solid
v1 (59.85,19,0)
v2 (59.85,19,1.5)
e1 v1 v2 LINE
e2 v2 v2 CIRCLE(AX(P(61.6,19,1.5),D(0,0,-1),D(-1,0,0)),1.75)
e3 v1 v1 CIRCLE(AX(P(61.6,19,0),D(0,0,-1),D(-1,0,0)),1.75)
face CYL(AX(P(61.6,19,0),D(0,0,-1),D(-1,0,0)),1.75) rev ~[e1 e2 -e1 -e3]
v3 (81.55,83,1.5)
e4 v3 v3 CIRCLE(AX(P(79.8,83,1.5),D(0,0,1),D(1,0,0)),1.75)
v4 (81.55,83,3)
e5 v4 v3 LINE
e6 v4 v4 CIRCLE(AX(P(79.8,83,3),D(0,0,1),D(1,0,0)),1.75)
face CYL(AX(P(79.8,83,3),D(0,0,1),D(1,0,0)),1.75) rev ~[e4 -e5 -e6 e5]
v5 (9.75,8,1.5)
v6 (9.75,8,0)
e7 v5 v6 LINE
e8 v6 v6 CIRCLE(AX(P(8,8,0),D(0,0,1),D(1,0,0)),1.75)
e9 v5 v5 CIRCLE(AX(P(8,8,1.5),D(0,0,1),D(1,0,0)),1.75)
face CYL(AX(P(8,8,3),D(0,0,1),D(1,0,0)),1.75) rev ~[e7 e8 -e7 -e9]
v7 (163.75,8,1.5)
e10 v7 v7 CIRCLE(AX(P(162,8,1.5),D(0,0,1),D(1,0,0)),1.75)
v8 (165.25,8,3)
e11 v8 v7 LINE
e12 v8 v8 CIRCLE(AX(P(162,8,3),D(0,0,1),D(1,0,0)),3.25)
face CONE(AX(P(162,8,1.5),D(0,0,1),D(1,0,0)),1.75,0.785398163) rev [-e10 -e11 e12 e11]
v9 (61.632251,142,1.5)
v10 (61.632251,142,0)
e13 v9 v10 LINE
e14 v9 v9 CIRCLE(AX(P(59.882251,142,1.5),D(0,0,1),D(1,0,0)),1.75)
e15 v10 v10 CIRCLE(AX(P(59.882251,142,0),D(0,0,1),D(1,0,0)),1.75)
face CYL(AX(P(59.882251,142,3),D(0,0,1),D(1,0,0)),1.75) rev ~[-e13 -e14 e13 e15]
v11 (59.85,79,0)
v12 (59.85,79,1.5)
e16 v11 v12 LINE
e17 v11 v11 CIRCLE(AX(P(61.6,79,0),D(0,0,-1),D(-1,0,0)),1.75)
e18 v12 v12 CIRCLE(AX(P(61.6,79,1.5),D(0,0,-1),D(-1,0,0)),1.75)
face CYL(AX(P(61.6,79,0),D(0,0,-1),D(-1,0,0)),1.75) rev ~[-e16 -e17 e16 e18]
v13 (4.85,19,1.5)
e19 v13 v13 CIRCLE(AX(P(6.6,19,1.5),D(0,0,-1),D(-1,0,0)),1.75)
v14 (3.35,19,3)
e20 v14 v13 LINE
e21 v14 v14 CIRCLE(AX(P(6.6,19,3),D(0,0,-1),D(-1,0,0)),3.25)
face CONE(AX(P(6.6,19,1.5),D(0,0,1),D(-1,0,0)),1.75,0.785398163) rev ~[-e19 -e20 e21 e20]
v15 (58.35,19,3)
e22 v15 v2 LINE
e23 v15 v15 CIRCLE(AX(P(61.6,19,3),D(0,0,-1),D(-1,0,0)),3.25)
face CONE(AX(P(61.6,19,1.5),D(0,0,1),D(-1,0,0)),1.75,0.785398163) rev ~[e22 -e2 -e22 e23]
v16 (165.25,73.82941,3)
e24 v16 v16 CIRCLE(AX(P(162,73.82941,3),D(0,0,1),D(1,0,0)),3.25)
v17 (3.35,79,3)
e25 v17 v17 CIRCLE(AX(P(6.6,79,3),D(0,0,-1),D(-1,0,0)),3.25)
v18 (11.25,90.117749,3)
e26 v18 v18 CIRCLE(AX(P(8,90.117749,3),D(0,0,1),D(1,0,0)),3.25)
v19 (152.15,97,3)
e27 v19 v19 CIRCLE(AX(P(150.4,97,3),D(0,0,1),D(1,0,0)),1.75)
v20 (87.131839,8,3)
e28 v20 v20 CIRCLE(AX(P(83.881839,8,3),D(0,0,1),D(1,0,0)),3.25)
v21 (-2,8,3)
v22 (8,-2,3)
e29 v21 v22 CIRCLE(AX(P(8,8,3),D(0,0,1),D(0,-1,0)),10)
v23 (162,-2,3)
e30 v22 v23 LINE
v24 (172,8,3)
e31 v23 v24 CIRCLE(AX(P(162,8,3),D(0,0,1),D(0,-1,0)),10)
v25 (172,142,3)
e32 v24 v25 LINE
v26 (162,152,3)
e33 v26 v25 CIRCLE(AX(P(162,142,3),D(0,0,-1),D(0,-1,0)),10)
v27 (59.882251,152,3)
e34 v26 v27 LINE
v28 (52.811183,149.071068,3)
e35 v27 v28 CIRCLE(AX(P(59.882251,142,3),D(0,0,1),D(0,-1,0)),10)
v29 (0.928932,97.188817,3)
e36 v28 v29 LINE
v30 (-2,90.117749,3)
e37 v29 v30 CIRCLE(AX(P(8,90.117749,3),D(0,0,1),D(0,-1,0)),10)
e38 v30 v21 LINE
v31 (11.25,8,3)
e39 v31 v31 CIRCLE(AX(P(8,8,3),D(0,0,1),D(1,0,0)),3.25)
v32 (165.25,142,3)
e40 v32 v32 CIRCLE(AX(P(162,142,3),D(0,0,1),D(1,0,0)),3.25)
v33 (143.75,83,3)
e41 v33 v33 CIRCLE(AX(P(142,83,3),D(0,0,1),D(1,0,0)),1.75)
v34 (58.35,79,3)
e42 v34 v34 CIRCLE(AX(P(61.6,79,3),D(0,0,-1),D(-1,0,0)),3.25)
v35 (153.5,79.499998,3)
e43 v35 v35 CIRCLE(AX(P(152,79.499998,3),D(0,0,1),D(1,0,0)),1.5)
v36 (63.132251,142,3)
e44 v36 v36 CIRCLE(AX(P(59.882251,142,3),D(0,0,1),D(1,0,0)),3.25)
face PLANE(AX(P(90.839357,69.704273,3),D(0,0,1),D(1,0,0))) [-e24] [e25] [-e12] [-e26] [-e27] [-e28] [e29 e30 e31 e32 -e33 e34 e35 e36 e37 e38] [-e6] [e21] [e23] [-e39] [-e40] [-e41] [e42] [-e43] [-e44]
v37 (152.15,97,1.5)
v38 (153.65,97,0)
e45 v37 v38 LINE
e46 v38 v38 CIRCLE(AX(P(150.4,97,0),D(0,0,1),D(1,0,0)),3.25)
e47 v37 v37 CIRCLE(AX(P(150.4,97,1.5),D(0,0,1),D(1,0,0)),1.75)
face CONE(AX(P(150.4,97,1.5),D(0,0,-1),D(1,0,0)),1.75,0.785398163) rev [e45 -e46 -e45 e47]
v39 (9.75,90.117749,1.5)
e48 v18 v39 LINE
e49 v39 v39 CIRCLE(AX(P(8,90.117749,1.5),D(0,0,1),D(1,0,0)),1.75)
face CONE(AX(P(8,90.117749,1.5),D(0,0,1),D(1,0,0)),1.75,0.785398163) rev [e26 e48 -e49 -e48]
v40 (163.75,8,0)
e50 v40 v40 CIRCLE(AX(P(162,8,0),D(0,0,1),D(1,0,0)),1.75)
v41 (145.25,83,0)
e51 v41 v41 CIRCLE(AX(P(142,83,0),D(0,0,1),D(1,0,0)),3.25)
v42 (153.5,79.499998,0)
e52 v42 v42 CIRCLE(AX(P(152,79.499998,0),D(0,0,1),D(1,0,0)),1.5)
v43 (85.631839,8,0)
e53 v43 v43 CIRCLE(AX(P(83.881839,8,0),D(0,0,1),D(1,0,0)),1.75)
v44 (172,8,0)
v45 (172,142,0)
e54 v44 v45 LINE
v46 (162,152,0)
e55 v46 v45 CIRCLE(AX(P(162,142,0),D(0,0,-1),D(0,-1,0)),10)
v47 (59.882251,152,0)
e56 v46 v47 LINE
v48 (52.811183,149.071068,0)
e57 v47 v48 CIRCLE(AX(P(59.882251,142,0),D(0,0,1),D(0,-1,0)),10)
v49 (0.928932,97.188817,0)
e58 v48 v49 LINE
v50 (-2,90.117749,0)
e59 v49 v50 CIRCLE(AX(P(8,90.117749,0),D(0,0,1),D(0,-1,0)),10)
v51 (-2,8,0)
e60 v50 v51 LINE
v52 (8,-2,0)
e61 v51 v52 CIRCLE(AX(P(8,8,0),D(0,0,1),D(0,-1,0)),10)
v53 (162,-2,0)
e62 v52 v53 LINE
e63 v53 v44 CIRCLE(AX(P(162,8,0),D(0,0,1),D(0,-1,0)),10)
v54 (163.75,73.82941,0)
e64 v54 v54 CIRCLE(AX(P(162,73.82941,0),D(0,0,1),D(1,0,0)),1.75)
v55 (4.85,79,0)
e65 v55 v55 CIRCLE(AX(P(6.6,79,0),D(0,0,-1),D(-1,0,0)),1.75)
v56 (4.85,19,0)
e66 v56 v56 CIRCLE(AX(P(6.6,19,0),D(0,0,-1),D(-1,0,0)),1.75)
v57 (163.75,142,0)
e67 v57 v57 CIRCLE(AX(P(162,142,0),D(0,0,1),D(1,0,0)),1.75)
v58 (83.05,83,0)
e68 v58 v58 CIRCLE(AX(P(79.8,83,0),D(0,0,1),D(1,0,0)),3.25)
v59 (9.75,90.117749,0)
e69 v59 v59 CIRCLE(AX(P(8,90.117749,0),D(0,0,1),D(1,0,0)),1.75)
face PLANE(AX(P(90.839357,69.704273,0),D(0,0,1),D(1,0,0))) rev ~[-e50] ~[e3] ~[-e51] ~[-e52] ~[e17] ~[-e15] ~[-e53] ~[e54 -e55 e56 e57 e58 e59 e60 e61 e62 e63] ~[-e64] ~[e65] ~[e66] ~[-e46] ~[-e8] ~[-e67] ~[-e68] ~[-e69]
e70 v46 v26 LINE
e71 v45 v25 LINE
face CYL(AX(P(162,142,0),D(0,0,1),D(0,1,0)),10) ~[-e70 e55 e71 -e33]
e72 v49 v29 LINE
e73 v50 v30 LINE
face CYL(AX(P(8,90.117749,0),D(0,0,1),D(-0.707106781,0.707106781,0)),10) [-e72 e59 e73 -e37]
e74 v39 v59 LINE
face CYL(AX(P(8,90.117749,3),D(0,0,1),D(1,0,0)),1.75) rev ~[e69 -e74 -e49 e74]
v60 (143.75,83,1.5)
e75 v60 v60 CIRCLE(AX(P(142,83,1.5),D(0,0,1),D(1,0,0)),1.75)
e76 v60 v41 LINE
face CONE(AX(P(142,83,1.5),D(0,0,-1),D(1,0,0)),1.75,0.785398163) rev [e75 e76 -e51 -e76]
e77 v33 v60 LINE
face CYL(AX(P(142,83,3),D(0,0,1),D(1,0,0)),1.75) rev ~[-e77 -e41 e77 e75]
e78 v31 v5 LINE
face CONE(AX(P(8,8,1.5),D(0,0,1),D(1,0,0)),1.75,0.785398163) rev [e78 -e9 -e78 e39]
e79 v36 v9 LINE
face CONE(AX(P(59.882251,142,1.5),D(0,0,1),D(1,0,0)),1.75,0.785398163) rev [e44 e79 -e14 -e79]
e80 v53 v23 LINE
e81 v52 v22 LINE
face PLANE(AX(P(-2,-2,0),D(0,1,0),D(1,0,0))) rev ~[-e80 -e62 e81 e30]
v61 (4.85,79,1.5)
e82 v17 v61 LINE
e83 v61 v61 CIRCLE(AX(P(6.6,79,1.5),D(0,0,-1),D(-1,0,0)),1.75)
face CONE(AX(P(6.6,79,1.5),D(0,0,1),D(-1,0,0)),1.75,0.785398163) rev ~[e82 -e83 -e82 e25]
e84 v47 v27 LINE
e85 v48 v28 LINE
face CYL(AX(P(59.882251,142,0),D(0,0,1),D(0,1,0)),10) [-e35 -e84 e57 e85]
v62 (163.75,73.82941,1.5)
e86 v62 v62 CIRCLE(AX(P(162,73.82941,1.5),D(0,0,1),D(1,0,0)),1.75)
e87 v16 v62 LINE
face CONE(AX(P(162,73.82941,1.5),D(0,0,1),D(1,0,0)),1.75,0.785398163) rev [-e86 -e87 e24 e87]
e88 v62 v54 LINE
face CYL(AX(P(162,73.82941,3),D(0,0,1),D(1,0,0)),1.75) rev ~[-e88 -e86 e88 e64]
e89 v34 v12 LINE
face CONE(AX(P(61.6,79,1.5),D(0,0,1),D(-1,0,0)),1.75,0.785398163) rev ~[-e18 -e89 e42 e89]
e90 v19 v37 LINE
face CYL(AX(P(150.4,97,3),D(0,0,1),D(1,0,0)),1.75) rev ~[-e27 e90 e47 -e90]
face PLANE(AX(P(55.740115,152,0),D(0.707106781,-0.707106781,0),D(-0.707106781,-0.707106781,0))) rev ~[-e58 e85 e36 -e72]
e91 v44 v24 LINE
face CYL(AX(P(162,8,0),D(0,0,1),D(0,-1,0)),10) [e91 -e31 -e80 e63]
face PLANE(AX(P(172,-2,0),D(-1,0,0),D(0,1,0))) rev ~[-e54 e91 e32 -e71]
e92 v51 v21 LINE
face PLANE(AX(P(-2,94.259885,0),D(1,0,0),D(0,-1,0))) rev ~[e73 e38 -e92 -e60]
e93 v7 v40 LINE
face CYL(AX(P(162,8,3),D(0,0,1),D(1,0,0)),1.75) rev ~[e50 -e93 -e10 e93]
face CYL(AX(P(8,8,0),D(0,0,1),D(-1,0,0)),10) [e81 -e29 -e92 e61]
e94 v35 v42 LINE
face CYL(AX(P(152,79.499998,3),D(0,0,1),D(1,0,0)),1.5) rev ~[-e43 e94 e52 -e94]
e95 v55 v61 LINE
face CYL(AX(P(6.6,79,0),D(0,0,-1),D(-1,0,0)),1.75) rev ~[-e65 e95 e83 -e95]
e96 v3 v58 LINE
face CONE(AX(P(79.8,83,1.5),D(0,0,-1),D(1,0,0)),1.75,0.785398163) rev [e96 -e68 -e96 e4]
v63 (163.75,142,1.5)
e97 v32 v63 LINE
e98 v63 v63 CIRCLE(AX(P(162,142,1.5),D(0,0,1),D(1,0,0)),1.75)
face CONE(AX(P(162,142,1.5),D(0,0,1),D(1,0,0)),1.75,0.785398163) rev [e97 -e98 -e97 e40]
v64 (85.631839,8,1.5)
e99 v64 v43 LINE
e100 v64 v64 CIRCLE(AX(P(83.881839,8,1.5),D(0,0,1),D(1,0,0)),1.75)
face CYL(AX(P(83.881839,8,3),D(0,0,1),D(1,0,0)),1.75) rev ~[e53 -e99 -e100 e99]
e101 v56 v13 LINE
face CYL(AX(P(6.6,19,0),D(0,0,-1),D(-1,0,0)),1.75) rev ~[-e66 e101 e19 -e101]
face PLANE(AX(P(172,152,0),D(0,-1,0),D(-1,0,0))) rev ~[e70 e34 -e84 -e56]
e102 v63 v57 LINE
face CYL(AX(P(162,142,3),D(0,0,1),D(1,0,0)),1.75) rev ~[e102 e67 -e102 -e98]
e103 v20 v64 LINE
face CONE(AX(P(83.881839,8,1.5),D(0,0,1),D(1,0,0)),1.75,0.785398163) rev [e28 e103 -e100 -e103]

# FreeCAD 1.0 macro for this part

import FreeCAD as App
import Part
import Sketcher
from FreeCAD import Vector
Q = App.Units.Quantity


def edges_at(feature, points):
    """Names of the edges that pass closest to the given points."""
    edges = feature.Shape.Edges
    near = lambda p: min(range(len(edges)), key=lambda i: edges[i].distToShape(Part.Vertex(*p))[0])
    return sorted({f"Edge{near(p) + 1}" for p in points})

doc = App.newDocument("Part")
body = doc.addObject("PartDesign::Body", "Body")

sketch1 = doc.addObject("Sketcher::SketchObject", "Sketch")
body.addObject(sketch1)
sketch1.AttachmentSupport = (doc.XY_Plane, [""])
sketch1.MapMode = "FlatFace"
sketch1.addGeometry([
    Part.LineSegment(Vector(172, 152, 0), Vector(55.740115, 152, 0)),
    Part.LineSegment(Vector(55.740115, 152, 0), Vector(-2, 94.259885, 0)),
    Part.LineSegment(Vector(-2, 94.259885, 0), Vector(-2, -2, 0)),
    Part.LineSegment(Vector(-2, -2, 0), Vector(172, -2, 0)),
    Part.LineSegment(Vector(172, -2, 0), Vector(172, 152, 0)),
], False)
sketch1.addConstraint([
    Sketcher.Constraint("Coincident", 0, 2, 1, 1),
    Sketcher.Constraint("Coincident", 1, 2, 2, 1),
    Sketcher.Constraint("Coincident", 2, 2, 3, 1),
    Sketcher.Constraint("Coincident", 3, 2, 4, 1),
    Sketcher.Constraint("Coincident", 4, 2, 0, 1),
    Sketcher.Constraint("Horizontal", 0),
    Sketcher.Constraint("Vertical", 2),
    Sketcher.Constraint("Horizontal", 3),
    Sketcher.Constraint("Vertical", 4),
    Sketcher.Constraint("DistanceX", 3, 1, 3, 2, Q("174 mm")),
    Sketcher.Constraint("DistanceY", 4, 1, 4, 2, Q("154 mm")),
    Sketcher.Constraint("Angle", 1, Q("-135 deg")),
    Sketcher.Constraint("DistanceY", -1, 1, 0, 2, Q("152 mm")),
    Sketcher.Constraint("DistanceX", 1, 2, -1, 1, Q("2 mm")),
    Sketcher.Constraint("DistanceX", 0, 2, 0, 1, Q("116.259885 mm")),
])
pad1 = doc.addObject("PartDesign::Pad", "Pad")
body.addObject(pad1)
pad1.Profile = sketch1
pad1.Length = 3
doc.recompute()

fillet = doc.addObject("PartDesign::Fillet", "Fillet")
body.addObject(fillet)
fillet.Base = (pad1, edges_at(pad1, [
    (172, -2, 1.5),
    (-2, -2, 1.5),
    (-2, 94.26, 1.5),
    (55.74, 152, 1.5),
    (172, 152, 1.5),
]))
fillet.Radius = 10

sketch2 = doc.addObject("Sketcher::SketchObject", "Sketch001")
body.addObject(sketch2)
sketch2.AttachmentSupport = (doc.XY_Plane, [""])
sketch2.MapMode = "FlatFace"
sketch2.AttachmentOffset = App.Placement(Vector(0, 0, 3), App.Rotation())
sketch2.addGeometry([
    Part.Circle(Vector(162, 142, 0), Vector(0, 0, 1), 1.75),
    Part.Circle(Vector(59.882251, 142, 0), Vector(0, 0, 1), 1.75),
    Part.Circle(Vector(8, 90.117749, 0), Vector(0, 0, 1), 1.75),
    Part.Circle(Vector(8, 8, 0), Vector(0, 0, 1), 1.75),
    Part.Circle(Vector(162, 8, 0), Vector(0, 0, 1), 1.75),
    Part.Circle(Vector(162, 73.82941, 0), Vector(0, 0, 1), 1.75),
    Part.Circle(Vector(83.881839, 8, 0), Vector(0, 0, 1), 1.75),
], False)
sketch2.addConstraint([
    Sketcher.Constraint("Equal", 0, 1),
    Sketcher.Constraint("Equal", 1, 2),
    Sketcher.Constraint("Equal", 2, 3),
    Sketcher.Constraint("Equal", 3, 4),
    Sketcher.Constraint("Equal", 4, 5),
    Sketcher.Constraint("Equal", 5, 6),
    Sketcher.Constraint("Horizontal", 0, 3, 1, 3),
    Sketcher.Constraint("Horizontal", 3, 3, 4, 3),
    Sketcher.Constraint("Horizontal", 4, 3, 6, 3),
    Sketcher.Constraint("Vertical", 2, 3, 3, 3),
    Sketcher.Constraint("Vertical", 0, 3, 4, 3),
    Sketcher.Constraint("Vertical", 4, 3, 5, 3),
    Sketcher.Constraint("Diameter", 0, Q("3.5 mm")),
    Sketcher.Constraint("DistanceX", -1, 1, 0, 3, Q("162 mm")),
    Sketcher.Constraint("DistanceY", -1, 1, 0, 3, Q("142 mm")),
    Sketcher.Constraint("DistanceX", -1, 1, 2, 3, Q("8 mm")),
    Sketcher.Constraint("DistanceY", -1, 1, 3, 3, Q("8 mm")),
    Sketcher.Constraint("DistanceX", -1, 1, 1, 3, Q("59.882251 mm")),
    Sketcher.Constraint("DistanceY", -1, 1, 2, 3, Q("90.117749 mm")),
    Sketcher.Constraint("DistanceY", -1, 1, 5, 3, Q("73.82941 mm")),
    Sketcher.Constraint("DistanceX", -1, 1, 6, 3, Q("83.881839 mm")),
])
pocket1 = doc.addObject("PartDesign::Pocket", "Pocket")
body.addObject(pocket1)
pocket1.Profile = sketch2
pocket1.Length = 3
doc.recompute()

chamfer = doc.addObject("PartDesign::Chamfer", "Chamfer")
body.addObject(chamfer)
chamfer.Base = (pocket1, edges_at(pocket1, [
    (58.132, 142, 3),
    (6.25, 90.118, 3),
    (6.25, 8, 3),
    (160.25, 8, 3),
    (160.25, 73.829, 3),
    (82.132, 8, 3),
    (160.25, 142, 3),
]))
chamfer.Size = 1.5

sketch3 = doc.addObject("Sketcher::SketchObject", "Sketch002")
body.addObject(sketch3)
sketch3.AttachmentSupport = (doc.XY_Plane, [""])
sketch3.MapMode = "FlatFace"
sketch3.AttachmentOffset = App.Placement(Vector(0, 0, 3), App.Rotation())
sketch3.addGeometry([
    Part.Circle(Vector(150.4, 97, 0), Vector(0, 0, 1), 1.75),
    Part.Circle(Vector(142, 83, 0), Vector(0, 0, 1), 1.75),
    Part.Circle(Vector(79.8, 83, 0), Vector(0, 0, 1), 1.75),
    Part.Circle(Vector(152, 79.499998, 0), Vector(0, 0, 1), 1.5),
], False)
sketch3.addConstraint([
    Sketcher.Constraint("Equal", 0, 1),
    Sketcher.Constraint("Equal", 1, 2),
    Sketcher.Constraint("Horizontal", 1, 3, 2, 3),
    Sketcher.Constraint("Diameter", 3, Q("3 mm")),
    Sketcher.Constraint("Diameter", 0, Q("3.5 mm")),
    Sketcher.Constraint("DistanceY", -1, 1, 0, 3, Q("97 mm")),
    Sketcher.Constraint("DistanceX", -1, 1, 1, 3, Q("142 mm")),
    Sketcher.Constraint("DistanceY", -1, 1, 1, 3, Q("83 mm")),
    Sketcher.Constraint("DistanceX", -1, 1, 3, 3, Q("152 mm")),
    Sketcher.Constraint("DistanceX", -1, 1, 0, 3, Q("150.4 mm")),
    Sketcher.Constraint("DistanceX", -1, 1, 2, 3, Q("79.8 mm")),
    Sketcher.Constraint("DistanceY", -1, 1, 3, 3, Q("79.499998 mm")),
])
pocket2 = doc.addObject("PartDesign::Pocket", "Pocket001")
body.addObject(pocket2)
pocket2.Profile = sketch3
pocket2.Type = "ThroughAll"

sketch4 = doc.addObject("Sketcher::SketchObject", "Sketch003")
body.addObject(sketch4)
sketch4.AttachmentSupport = (doc.XY_Plane, [""])
sketch4.MapMode = "FlatFace"
sketch4.addGeometry([
    Part.Circle(Vector(61.6, 79, 0), Vector(0, 0, 1), 1.75),
    Part.Circle(Vector(6.6, 79, 0), Vector(0, 0, 1), 1.75),
    Part.Circle(Vector(6.6, 19, 0), Vector(0, 0, 1), 1.75),
    Part.Circle(Vector(61.6, 19, 0), Vector(0, 0, 1), 1.75),
], False)
sketch4.addConstraint([
    Sketcher.Constraint("Equal", 0, 1),
    Sketcher.Constraint("Equal", 1, 2),
    Sketcher.Constraint("Equal", 2, 3),
    Sketcher.Constraint("Horizontal", 0, 3, 1, 3),
    Sketcher.Constraint("Horizontal", 2, 3, 3, 3),
    Sketcher.Constraint("Vertical", 1, 3, 2, 3),
    Sketcher.Constraint("Vertical", 0, 3, 3, 3),
    Sketcher.Constraint("Diameter", 0, Q("3.5 mm")),
    Sketcher.Constraint("DistanceY", -1, 1, 0, 3, Q("79 mm")),
    Sketcher.Constraint("DistanceY", -1, 1, 2, 3, Q("19 mm")),
    Sketcher.Constraint("DistanceX", 1, 3, 0, 3, Q("55 mm")),
    Sketcher.Constraint("DistanceX", -1, 1, 0, 3, Q("61.6 mm")),
])
pocket3 = doc.addObject("PartDesign::Pocket", "Pocket002")
body.addObject(pocket3)
pocket3.Profile = sketch4
pocket3.Length = 10
pocket3.Reversed = True
doc.recompute()

chamfer2 = doc.addObject("PartDesign::Chamfer", "Chamfer001")
body.addObject(chamfer2)
chamfer2.Base = (pocket3, edges_at(pocket3, [
    (148.65, 97, 0),
    (140.25, 83, 0),
    (78.05, 83, 0),
    (63.35, 19, 3),
    (8.35, 19, 3),
    (8.35, 79, 3),
    (63.35, 79, 3),
]))
chamfer2.Size = 1.5

doc.recompute()
